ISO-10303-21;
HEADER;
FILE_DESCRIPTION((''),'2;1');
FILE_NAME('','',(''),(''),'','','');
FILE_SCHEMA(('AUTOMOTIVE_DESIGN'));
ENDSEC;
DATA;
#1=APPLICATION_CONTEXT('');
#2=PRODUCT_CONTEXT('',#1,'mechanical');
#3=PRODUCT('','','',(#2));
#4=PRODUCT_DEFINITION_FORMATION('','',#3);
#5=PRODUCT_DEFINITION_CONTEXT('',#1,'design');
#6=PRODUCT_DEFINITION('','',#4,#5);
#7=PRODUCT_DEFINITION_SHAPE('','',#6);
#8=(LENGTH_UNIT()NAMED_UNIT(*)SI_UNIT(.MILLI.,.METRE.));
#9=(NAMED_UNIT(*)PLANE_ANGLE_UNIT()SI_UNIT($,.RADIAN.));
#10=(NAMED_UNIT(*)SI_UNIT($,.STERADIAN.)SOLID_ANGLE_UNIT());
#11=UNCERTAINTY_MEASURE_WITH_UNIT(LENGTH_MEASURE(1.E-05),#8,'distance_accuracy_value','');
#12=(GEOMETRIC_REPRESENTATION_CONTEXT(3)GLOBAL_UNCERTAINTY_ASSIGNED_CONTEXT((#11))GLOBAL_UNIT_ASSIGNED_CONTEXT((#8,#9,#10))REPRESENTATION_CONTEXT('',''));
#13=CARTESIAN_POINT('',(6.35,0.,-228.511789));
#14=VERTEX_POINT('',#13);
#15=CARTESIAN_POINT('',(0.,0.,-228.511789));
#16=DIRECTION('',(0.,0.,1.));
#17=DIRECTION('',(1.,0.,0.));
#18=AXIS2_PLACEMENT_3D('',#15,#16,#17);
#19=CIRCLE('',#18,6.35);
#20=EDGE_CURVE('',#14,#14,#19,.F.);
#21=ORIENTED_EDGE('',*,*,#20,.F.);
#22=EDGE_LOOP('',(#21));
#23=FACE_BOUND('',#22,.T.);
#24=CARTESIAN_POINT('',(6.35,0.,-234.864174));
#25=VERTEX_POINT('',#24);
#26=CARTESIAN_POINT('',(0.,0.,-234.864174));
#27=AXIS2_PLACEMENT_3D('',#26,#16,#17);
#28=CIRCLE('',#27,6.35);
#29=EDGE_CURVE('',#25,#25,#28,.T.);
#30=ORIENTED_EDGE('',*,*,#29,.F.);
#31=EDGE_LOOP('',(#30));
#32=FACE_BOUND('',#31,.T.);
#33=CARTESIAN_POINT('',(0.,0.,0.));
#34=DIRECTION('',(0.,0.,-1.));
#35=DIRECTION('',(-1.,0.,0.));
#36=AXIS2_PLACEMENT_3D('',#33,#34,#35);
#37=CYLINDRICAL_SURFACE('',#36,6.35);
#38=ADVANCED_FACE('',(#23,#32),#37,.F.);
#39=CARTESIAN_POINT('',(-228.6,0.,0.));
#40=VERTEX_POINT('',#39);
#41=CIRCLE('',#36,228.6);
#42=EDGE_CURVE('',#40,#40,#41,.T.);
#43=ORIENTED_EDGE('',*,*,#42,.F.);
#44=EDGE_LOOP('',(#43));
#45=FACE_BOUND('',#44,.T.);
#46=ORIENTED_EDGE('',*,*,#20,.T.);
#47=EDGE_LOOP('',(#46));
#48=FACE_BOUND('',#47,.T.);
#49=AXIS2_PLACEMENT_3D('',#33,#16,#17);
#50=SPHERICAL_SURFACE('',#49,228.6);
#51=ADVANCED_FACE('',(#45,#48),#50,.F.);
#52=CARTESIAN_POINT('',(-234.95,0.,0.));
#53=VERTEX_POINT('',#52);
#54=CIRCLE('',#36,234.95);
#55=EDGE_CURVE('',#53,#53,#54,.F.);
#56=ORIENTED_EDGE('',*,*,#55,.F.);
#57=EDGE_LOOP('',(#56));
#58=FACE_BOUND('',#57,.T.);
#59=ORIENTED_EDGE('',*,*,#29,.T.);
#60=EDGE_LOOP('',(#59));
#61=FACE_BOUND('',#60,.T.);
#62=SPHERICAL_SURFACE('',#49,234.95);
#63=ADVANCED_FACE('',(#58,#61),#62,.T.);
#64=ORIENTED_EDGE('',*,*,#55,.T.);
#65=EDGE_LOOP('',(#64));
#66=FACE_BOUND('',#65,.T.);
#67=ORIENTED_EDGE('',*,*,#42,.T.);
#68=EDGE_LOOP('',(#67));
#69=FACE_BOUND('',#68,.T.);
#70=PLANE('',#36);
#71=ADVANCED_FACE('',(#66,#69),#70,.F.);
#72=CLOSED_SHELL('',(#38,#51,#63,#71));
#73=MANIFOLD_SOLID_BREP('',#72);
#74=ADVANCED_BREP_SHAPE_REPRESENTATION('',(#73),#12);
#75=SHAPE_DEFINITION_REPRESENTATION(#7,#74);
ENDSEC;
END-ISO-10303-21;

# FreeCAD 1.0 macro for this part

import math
import FreeCAD as App
import Part
import Sketcher
Q = App.Units.Quantity

doc = App.newDocument("Part")
body = doc.addObject("PartDesign::Body", "Body")

# Sketch on XY plane
sketch1 = body.newObject("Sketcher::SketchObject", "Sketch")
sketch1.AttachmentSupport = (doc.getObject("XY_Plane"), [""])
sketch1.MapMode = "FlatFace"
sketch1.addGeometry(Part.ArcOfCircle(Part.Circle(App.Vector(0, 0, 0), App.Vector(0, 0, 1), 234.95), math.radians(-90), math.radians(90)), False)
sketch1.addGeometry(Part.LineSegment(App.Vector(0, 234.95, 0), App.Vector(0, 228.6, 0)), False)
sketch1.addGeometry(Part.ArcOfCircle(Part.Circle(App.Vector(0, 0, 0), App.Vector(0, 0, 1), 228.6), math.radians(-90), math.radians(90)), False)
sketch1.addGeometry(Part.LineSegment(App.Vector(0, -228.6, 0), App.Vector(0, -234.95, 0)), False)
sketch1.addConstraint(Sketcher.Constraint("Coincident", 0, 2, 1, 1))
sketch1.addConstraint(Sketcher.Constraint("Coincident", 1, 2, 2, 2))
sketch1.addConstraint(Sketcher.Constraint("Coincident", 2, 1, 3, 1))
sketch1.addConstraint(Sketcher.Constraint("Coincident", 3, 2, 0, 1))
sketch1.addConstraint(Sketcher.Constraint("Vertical", 1))
sketch1.addConstraint(Sketcher.Constraint("Vertical", 3))
sketch1.addConstraint(Sketcher.Constraint("Coincident", 0, 3, -1, 1))
sketch1.addConstraint(Sketcher.Constraint("Coincident", 2, 3, -1, 1))
sketch1.addConstraint(Sketcher.Constraint("PointOnObject", 0, 2, -2))
sketch1.addConstraint(Sketcher.Constraint("PointOnObject", 2, 1, -2))
sketch1.addConstraint(Sketcher.Constraint("Radius", 2, Q("9 in")))
sketch1.addConstraint(Sketcher.Constraint("Radius", 0, Q("9.25 in")))
revolution = body.newObject("PartDesign::Revolution", "Revolution")
revolution.Profile = sketch1
revolution.ReferenceAxis = (sketch1, ["V_Axis"])
revolution.Angle = 180

# Sketch on XY plane
sketch2 = body.newObject("Sketcher::SketchObject", "Sketch001")
sketch2.AttachmentSupport = (doc.getObject("XY_Plane"), [""])
sketch2.MapMode = "FlatFace"
sketch2.AttachmentOffset = App.Placement(App.Vector(0, 0, -9.25 * 25.4), App.Rotation())
sketch2.addGeometry(Part.Circle(App.Vector(0, 0, 0), App.Vector(0, 0, 1), 6.35), False)
sketch2.addConstraint(Sketcher.Constraint("Coincident", 0, 3, -1, 1))
sketch2.addConstraint(Sketcher.Constraint("Diameter", 0, Q("0.5 in")))
pocket1 = body.newObject("PartDesign::Pocket", "Pocket")
pocket1.Profile = sketch2
pocket1.Type = "ThroughAll"
pocket1.Reversed = True

doc.recompute()
